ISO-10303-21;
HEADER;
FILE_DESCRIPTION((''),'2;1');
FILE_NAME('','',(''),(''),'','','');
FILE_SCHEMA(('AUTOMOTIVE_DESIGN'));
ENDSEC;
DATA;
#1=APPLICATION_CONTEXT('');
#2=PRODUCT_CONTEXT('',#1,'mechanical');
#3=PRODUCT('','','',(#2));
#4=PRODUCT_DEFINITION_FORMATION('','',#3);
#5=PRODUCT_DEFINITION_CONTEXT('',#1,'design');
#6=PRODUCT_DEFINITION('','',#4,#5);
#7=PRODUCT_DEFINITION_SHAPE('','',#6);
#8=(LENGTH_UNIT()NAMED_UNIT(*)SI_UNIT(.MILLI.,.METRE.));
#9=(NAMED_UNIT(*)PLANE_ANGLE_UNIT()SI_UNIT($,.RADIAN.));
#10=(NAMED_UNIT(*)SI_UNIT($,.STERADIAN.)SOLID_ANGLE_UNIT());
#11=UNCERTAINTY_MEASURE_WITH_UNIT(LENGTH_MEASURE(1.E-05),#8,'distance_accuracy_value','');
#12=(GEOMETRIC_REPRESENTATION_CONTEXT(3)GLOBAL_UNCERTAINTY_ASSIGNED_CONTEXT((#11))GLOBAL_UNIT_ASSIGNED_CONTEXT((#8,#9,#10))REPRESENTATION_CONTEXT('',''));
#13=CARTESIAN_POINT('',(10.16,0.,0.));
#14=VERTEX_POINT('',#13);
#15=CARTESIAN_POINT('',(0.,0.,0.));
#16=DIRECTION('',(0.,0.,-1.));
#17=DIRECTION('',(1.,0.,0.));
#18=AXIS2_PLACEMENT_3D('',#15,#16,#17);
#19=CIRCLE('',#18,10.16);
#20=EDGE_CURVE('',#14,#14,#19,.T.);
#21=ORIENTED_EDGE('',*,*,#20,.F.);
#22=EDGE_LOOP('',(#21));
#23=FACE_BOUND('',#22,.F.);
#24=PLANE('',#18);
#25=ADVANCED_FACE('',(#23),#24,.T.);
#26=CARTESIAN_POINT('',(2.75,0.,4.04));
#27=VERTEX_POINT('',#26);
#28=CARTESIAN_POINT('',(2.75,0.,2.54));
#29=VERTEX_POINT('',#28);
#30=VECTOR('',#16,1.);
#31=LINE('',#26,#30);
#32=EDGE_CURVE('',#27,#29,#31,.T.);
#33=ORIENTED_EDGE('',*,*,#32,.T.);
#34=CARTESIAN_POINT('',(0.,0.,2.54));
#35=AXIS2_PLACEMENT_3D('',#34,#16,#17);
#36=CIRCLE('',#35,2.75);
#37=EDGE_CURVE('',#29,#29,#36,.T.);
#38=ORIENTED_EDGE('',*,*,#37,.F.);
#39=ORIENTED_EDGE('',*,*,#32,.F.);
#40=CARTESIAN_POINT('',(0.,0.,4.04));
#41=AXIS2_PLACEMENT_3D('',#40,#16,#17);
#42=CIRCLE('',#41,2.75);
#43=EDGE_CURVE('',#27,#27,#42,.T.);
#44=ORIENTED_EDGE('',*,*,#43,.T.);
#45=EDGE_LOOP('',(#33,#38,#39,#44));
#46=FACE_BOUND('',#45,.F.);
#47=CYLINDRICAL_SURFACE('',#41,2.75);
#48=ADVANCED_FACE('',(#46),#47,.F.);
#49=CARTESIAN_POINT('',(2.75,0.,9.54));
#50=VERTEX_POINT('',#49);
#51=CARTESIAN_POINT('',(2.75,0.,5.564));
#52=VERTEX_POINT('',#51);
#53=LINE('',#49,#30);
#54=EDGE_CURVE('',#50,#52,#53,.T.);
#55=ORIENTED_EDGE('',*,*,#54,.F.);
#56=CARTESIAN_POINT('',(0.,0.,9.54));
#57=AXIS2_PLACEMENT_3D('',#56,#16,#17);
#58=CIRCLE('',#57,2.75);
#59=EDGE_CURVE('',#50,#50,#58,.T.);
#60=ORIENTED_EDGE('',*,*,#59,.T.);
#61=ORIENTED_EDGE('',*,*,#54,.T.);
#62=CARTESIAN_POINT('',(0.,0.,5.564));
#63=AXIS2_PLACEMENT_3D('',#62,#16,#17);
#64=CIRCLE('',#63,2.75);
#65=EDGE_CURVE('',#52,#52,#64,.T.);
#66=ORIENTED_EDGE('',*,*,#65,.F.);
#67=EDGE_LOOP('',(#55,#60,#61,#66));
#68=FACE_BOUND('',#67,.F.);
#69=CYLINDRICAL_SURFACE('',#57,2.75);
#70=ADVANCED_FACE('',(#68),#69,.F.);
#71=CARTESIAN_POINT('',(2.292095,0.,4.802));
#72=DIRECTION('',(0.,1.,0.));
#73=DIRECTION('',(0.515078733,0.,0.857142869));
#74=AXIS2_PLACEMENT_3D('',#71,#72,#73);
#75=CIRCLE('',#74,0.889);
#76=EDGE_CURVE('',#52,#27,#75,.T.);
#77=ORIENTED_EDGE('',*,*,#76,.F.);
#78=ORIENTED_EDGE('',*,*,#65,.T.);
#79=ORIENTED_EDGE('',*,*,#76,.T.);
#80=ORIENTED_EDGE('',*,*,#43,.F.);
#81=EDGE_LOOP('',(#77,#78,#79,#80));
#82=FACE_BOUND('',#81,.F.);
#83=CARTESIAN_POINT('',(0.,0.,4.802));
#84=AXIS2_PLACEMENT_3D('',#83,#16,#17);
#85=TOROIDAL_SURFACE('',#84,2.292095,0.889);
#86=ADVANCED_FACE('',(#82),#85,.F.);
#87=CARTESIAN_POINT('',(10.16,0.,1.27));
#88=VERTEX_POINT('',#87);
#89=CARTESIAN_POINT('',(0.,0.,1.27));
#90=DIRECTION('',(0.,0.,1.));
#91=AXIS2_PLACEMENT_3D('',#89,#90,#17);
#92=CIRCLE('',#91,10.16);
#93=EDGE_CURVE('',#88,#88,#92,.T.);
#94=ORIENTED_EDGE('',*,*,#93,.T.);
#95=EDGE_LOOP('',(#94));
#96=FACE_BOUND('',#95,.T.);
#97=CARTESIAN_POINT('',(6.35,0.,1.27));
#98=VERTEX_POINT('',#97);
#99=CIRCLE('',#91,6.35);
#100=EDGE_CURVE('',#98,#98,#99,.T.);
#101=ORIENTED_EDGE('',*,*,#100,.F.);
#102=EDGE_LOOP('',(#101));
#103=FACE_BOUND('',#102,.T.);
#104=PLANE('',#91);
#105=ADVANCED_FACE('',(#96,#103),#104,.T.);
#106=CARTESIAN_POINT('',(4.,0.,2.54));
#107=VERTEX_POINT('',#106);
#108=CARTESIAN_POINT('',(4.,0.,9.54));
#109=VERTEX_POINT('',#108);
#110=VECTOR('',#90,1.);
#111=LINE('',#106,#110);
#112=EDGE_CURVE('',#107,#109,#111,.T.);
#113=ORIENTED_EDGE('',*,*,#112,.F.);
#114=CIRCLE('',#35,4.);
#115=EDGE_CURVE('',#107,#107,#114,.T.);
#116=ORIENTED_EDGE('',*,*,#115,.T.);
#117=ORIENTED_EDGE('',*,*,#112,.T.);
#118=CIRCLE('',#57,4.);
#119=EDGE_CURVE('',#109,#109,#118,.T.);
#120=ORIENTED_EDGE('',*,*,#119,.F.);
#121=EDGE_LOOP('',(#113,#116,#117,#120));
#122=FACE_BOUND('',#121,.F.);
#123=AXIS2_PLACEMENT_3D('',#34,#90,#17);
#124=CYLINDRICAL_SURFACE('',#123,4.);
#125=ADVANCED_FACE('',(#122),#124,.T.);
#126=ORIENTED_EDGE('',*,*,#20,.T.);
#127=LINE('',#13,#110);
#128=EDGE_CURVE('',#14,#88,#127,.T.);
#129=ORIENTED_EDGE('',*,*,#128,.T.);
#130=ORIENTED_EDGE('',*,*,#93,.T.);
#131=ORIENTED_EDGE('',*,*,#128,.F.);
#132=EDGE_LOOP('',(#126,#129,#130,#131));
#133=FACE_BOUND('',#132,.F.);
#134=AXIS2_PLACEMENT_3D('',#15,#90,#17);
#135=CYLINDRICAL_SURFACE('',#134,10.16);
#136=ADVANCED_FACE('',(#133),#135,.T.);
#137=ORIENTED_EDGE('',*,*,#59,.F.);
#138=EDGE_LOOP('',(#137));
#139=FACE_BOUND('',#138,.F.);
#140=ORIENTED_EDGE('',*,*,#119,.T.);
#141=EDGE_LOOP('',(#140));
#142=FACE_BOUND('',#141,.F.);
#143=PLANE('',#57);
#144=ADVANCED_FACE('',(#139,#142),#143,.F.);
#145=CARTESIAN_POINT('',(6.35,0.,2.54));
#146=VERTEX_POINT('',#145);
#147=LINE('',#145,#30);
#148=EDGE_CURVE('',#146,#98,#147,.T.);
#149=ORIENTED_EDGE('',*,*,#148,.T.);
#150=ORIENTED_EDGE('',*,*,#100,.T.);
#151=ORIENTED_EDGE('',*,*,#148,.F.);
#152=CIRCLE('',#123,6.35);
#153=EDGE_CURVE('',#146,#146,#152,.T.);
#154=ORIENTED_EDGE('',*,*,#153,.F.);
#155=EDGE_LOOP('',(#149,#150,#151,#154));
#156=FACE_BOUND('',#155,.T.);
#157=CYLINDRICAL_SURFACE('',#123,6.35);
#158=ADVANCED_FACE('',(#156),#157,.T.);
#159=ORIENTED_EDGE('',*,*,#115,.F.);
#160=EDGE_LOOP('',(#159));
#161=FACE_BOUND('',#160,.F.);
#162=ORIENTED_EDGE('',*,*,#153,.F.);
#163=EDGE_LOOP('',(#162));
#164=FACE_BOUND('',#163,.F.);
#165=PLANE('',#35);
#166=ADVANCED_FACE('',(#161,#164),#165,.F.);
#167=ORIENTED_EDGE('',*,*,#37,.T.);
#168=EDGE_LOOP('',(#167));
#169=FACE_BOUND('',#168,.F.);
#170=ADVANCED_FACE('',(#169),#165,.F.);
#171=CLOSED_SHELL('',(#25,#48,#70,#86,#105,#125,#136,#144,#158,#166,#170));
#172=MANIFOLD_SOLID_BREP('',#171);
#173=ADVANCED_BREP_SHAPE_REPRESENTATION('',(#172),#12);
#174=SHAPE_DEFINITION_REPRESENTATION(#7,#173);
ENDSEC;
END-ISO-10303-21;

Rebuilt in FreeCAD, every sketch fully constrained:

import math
import FreeCAD as App
import Part
import Sketcher
Q = App.Units.Quantity

doc = App.newDocument("Part")
body = doc.addObject("PartDesign::Body", "Body")

# Sketch on XZ plane
sketch1 = body.newObject("Sketcher::SketchObject", "Sketch")
sketch1.AttachmentSupport = (doc.getObject("XZ_Plane"), [""])
sketch1.MapMode = "FlatFace"
sketch1.addGeometry([
    Part.LineSegment(App.Vector(0, 2.5, 0), App.Vector(0, 0, 0)),  # 0
    Part.LineSegment(App.Vector(0, 0, 0), App.Vector(10.2, 0, 0)),  # 1
    Part.LineSegment(App.Vector(10.2, 0, 0), App.Vector(10.2, 2.5, 0)),  # 2
    Part.LineSegment(App.Vector(10.2, 2.5, 0), App.Vector(4, 2.5, 0)),  # 3
    Part.LineSegment(App.Vector(4, 2.5, 0), App.Vector(4, 9.5, 0)),  # 4
    Part.LineSegment(App.Vector(4, 9.5, 0), App.Vector(2.8, 9.5, 0)),  # 5
    Part.LineSegment(App.Vector(2.8, 9.5, 0), App.Vector(2.8, 5.6, 0)),  # 6
    Part.ArcOfCircle(Part.Circle(App.Vector(2.3, 4.8, 0), App.Vector(0, 0, 1), 0.9), math.radians(-59), math.radians(59)),  # 7
    Part.LineSegment(App.Vector(2.8, 4, 0), App.Vector(2.8, 2.5, 0)),  # 8
    Part.LineSegment(App.Vector(2.8, 2.5, 0), App.Vector(0, 2.5, 0)),  # 9
], False)
sketch1.addConstraint([
    Sketcher.Constraint("Coincident", 0, 2, 1, 1),
    Sketcher.Constraint("Coincident", 1, 2, 2, 1),
    Sketcher.Constraint("Coincident", 2, 2, 3, 1),
    Sketcher.Constraint("Coincident", 3, 2, 4, 1),
    Sketcher.Constraint("Coincident", 4, 2, 5, 1),
    Sketcher.Constraint("Coincident", 5, 2, 6, 1),
    Sketcher.Constraint("Coincident", 6, 2, 7, 2),
    Sketcher.Constraint("Coincident", 7, 1, 8, 1),
    Sketcher.Constraint("Coincident", 8, 2, 9, 1),
    Sketcher.Constraint("Coincident", 9, 2, 0, 1),
    Sketcher.Constraint("Vertical", 0),
    Sketcher.Constraint("Horizontal", 1),
    Sketcher.Constraint("Vertical", 2),
    Sketcher.Constraint("Horizontal", 3),
    Sketcher.Constraint("Vertical", 4),
    Sketcher.Constraint("Horizontal", 5),
    Sketcher.Constraint("Vertical", 6),
    Sketcher.Constraint("Vertical", 8),
    Sketcher.Constraint("Horizontal", 9),
    Sketcher.Constraint("Coincident", 0, 2, -1, 1),
    Sketcher.Constraint("Horizontal", 3, 2, 8, 2),
    Sketcher.Constraint("Vertical", 6, 2, 7, 1),
    Sketcher.Constraint("DistanceX", 1, 1, 1, 2, Q("0.4 in")),
    Sketcher.Constraint("DistanceY", 0, 2, 0, 1, Q("0.1 in")),
    Sketcher.Constraint("Radius", 7, Q("0.035 in")),
    Sketcher.Constraint("DistanceY", 7, 3, 6, 2, Q("0.03 in")),
    Sketcher.Constraint("DistanceX", 3, 2, 3, 1, Q("6.16 mm")),
    Sketcher.Constraint("DistanceX", 5, 2, 5, 1, Q("1.25 mm")),
    Sketcher.Constraint("DistanceY", 4, 1, 4, 2, Q("7 mm")),
    Sketcher.Constraint("DistanceY", 6, 2, 6, 1, Q("3.976 mm")),
])
revolution = body.newObject("PartDesign::Revolution", "Revolution")
revolution.Profile = sketch1
revolution.ReferenceAxis = (sketch1, ["V_Axis"])
revolution.Angle = 360

# Sketch on XY plane
sketch2 = body.newObject("Sketcher::SketchObject", "Sketch001")
sketch2.AttachmentSupport = (doc.getObject("XY_Plane"), [""])
sketch2.MapMode = "FlatFace"
sketch2.AttachmentOffset = App.Placement(App.Vector(0, 0, 0.1 * 25.4), App.Rotation())
sketch2.addGeometry([
    Part.Circle(App.Vector(0, 0, 0), App.Vector(0, 0, 1), 10),
    Part.Circle(App.Vector(0, 0, 0), App.Vector(0, 0, 1), 6),
], False)
sketch2.addConstraint([
    Sketcher.Constraint("Coincident", 0, 3, -1, 1),
    Sketcher.Constraint("Coincident", 1, 3, -1, 1),
    Sketcher.Constraint("Diameter", 0, Q("0.8 in")),
    Sketcher.Constraint("Diameter", 1, Q("0.5 in")),
])
pocket1 = body.newObject("PartDesign::Pocket", "Pocket")
pocket1.Profile = sketch2
pocket1.Length = Q("0.05 in")

doc.recompute()
